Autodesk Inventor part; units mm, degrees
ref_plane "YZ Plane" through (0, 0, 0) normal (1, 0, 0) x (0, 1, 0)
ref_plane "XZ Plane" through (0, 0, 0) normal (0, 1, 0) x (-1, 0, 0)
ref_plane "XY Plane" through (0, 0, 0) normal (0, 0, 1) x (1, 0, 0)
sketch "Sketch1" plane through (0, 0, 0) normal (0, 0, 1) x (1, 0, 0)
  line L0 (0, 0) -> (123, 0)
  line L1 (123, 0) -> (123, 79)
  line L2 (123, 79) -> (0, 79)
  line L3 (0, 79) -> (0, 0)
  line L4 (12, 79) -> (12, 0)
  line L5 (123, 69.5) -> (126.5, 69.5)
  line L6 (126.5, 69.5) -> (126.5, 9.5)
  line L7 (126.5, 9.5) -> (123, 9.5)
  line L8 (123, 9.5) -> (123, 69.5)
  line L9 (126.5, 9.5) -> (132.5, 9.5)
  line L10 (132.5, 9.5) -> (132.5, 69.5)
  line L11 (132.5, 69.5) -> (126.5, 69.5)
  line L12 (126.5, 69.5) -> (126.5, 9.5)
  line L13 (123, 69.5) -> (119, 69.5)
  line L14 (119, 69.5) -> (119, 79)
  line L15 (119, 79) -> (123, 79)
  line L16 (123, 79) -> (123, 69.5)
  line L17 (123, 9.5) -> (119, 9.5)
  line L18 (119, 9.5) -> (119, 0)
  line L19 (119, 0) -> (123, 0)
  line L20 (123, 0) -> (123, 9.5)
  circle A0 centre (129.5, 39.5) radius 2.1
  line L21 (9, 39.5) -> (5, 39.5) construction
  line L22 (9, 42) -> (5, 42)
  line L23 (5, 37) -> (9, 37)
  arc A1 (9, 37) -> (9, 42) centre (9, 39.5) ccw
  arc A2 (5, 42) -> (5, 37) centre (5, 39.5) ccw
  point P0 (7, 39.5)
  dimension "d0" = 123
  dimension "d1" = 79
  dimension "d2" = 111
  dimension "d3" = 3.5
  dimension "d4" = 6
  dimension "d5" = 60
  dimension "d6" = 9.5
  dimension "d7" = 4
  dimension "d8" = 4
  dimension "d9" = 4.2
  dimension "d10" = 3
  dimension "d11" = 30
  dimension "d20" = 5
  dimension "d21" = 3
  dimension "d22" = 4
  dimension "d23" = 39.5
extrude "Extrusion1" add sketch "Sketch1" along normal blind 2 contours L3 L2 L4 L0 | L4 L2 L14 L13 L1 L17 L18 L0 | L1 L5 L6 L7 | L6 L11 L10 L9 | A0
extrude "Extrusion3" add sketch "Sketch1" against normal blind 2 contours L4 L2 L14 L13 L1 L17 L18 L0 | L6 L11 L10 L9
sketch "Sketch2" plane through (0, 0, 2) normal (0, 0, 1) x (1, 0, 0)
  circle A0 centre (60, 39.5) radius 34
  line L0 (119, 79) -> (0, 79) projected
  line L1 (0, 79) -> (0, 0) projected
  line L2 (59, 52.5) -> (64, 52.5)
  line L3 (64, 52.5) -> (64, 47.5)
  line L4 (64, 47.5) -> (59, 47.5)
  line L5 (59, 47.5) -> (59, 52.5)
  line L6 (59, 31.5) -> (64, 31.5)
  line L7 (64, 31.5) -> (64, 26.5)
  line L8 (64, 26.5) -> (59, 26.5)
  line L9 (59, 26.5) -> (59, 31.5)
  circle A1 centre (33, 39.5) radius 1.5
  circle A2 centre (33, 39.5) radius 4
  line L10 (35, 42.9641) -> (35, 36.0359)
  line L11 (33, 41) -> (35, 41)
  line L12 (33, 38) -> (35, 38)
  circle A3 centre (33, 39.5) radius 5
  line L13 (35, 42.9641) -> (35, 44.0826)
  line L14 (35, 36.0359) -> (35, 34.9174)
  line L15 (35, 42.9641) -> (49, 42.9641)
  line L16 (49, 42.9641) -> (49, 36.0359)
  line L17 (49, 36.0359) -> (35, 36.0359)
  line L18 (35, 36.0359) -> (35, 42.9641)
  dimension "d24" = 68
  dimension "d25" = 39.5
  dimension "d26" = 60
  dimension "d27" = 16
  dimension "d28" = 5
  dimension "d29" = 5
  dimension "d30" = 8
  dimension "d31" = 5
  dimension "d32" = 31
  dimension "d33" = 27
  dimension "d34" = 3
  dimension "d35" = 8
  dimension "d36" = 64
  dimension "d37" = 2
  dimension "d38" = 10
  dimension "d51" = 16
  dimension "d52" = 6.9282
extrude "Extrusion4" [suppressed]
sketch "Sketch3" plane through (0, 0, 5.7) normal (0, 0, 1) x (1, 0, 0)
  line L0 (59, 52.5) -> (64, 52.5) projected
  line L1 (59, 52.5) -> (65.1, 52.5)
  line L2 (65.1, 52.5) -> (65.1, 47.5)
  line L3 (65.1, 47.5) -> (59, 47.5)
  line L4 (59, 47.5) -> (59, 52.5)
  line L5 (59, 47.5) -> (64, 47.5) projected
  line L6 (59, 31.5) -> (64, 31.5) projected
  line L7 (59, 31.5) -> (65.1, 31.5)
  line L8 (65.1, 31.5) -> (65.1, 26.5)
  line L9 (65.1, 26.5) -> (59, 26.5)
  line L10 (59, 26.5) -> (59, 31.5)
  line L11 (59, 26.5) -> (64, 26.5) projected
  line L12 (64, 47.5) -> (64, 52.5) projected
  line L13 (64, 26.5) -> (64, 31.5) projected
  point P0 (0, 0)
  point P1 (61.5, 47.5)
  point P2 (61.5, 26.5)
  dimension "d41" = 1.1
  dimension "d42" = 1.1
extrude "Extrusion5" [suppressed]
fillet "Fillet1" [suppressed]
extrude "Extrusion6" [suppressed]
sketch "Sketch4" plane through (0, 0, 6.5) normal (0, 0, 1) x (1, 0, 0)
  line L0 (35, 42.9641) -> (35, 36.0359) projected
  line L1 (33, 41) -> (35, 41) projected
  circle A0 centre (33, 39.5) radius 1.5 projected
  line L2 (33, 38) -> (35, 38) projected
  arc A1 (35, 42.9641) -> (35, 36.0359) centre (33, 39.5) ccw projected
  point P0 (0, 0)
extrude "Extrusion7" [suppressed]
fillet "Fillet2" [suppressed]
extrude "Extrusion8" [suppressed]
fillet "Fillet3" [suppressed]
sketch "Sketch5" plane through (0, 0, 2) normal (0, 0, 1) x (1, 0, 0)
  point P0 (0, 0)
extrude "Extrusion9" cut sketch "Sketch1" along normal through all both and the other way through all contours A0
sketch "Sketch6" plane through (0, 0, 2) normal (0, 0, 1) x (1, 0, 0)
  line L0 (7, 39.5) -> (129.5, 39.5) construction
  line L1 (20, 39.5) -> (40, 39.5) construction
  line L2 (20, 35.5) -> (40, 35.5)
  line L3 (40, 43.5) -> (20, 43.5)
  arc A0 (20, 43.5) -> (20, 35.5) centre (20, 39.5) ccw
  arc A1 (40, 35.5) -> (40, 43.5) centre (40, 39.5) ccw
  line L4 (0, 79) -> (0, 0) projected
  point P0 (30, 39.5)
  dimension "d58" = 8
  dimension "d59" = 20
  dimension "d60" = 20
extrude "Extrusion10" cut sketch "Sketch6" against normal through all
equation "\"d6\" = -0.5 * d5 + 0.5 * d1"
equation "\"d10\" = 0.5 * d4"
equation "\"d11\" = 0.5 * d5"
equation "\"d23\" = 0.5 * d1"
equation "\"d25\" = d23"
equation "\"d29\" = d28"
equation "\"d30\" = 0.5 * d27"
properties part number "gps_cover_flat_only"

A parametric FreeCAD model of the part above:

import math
import FreeCAD as App
import Part
import Sketcher

V = App.Vector


def add_polygon(sketch, points):
    """Adds a closed chain of lines whose ends are joined by coincident constraints."""
    first, n = sketch.GeometryCount, len(points)
    for a, b in zip(points, points[1:] + points[:1]):
        sketch.addGeometry(Part.LineSegment(App.Vector(*a, 0), App.Vector(*b, 0)), False)
    for i in range(n):
        sketch.addConstraint(Sketcher.Constraint("Coincident", first + i, 2, first + (i + 1) % n, 1))

doc = App.newDocument("Part")
body = doc.addObject("PartDesign::Body", "Body")

# Sketch on XY plane
sketch1 = body.newObject("Sketcher::SketchObject", "Sketch")
sketch1.AttachmentSupport = (doc.getObject("XY_Plane"), [""])
sketch1.MapMode = "FlatFace"
add_polygon(sketch1, [(0, 79), (0, 0), (119, 0), (119, 9.5), (132.5, 9.5), (132.5, 69.5), (119, 69.5), (119, 79)])  # lines 0-7
sketch1.addGeometry(Part.LineSegment(V(5, 42, 0), V(9, 42, 0)), False)  # 8
sketch1.addGeometry(Part.ArcOfCircle(Part.Circle(V(9, 39.5, 0), V(0, 0, 1), 2.5), math.radians(-90), math.radians(90)), False)  # 9
sketch1.addGeometry(Part.LineSegment(V(9, 37, 0), V(5, 37, 0)), False)  # 10
sketch1.addGeometry(Part.ArcOfCircle(Part.Circle(V(5, 39.5, 0), V(0, 0, 1), 2.5), math.radians(90), math.radians(270)), False)  # 11
sketch1.addConstraint([
    Sketcher.Constraint("Tangent", 8, 2, 9, 2),
    Sketcher.Constraint("Tangent", 9, 1, 10, 1),
    Sketcher.Constraint("Tangent", 10, 2, 11, 2),
    Sketcher.Constraint("Tangent", 11, 1, 8, 1),
    Sketcher.Constraint("Vertical", 0),
    Sketcher.Constraint("Horizontal", 1),
    Sketcher.Constraint("Vertical", 2),
    Sketcher.Constraint("Horizontal", 3),
    Sketcher.Constraint("Vertical", 4),
    Sketcher.Constraint("Horizontal", 5),
    Sketcher.Constraint("Vertical", 6),
    Sketcher.Constraint("Horizontal", 7),
    Sketcher.Constraint("Horizontal", 8),
    Sketcher.Constraint("Horizontal", 10),
    Sketcher.Constraint("Coincident", 0, 2, -1, 1),
    Sketcher.Constraint("Vertical", 2, 2, 5, 2),
    Sketcher.Constraint("Equal", 2, 6),
    Sketcher.Constraint("Radius", 9, 2.5),
    Sketcher.Constraint("DistanceX", 8, 1, 8, 2, 4.0),
    Sketcher.Constraint("DistanceY", 0, 2, 0, 1, 79.0),
    Sketcher.Constraint("DistanceY", 4, 1, 4, 2, 60.0),
    Sketcher.Constraint("DistanceX", -1, 1, 11, 3, 5.0),
    Sketcher.Constraint("DistanceY", 2, 2, 9, 3, 30.0),
    Sketcher.Constraint("DistanceX", 1, 1, 1, 2, 119.0),
    Sketcher.Constraint("DistanceX", 3, 1, 3, 2, 13.5),
])
pad1 = body.newObject("PartDesign::Pad", "Pad")
pad1.Profile = sketch1
pad1.Length = 2

# Sketch on XY plane
sketch2 = body.newObject("Sketcher::SketchObject", "Sketch001")
sketch2.AttachmentSupport = (doc.getObject("XY_Plane"), [""])
sketch2.MapMode = "FlatFace"
add_polygon(sketch2, [(12, 79), (12, 0), (119, 0), (119, 9.5), (123, 9.5), (123, 69.5), (119, 69.5), (119, 79)])  # lines 0-7
add_polygon(sketch2, [(126.5, 69.5), (126.5, 9.5), (132.5, 9.5), (132.5, 69.5)])  # lines 8-11
sketch2.addGeometry(Part.Circle(V(129.5, 39.5, 0), V(0, 0, 1), 2.1), False)  # 12
sketch2.addConstraint([
    Sketcher.Constraint("Vertical", 0),
    Sketcher.Constraint("Horizontal", 1),
    Sketcher.Constraint("Vertical", 2),
    Sketcher.Constraint("Horizontal", 3),
    Sketcher.Constraint("Vertical", 4),
    Sketcher.Constraint("Horizontal", 5),
    Sketcher.Constraint("Vertical", 6),
    Sketcher.Constraint("Horizontal", 7),
    Sketcher.Constraint("Vertical", 8),
    Sketcher.Constraint("Horizontal", 9),
    Sketcher.Constraint("Vertical", 10),
    Sketcher.Constraint("Horizontal", 11),
    Sketcher.Constraint("PointOnObject", 0, 2, -1),
    Sketcher.Constraint("Horizontal", 3, 2, 8, 2),
    Sketcher.Constraint("Horizontal", 5, 2, 10, 2),
    Sketcher.Constraint("Vertical", 2, 2, 5, 2),
    Sketcher.Constraint("Equal", 2, 6),
    Sketcher.Constraint("Diameter", 12, 4.2),
    Sketcher.Constraint("DistanceX", 3, 1, 3, 2, 4.0),
    Sketcher.Constraint("DistanceX", 9, 1, 9, 2, 6.0),
    Sketcher.Constraint("DistanceY", 0, 2, 0, 1, 79.0),
    Sketcher.Constraint("DistanceY", 4, 1, 4, 2, 60.0),
    Sketcher.Constraint("DistanceX", -1, 1, 3, 2, 123.0),
    Sketcher.Constraint("DistanceY", 2, 2, 12, 3, 30.0),
    Sketcher.Constraint("DistanceX", 0, 2, 3, 2, 111.0),
    Sketcher.Constraint("DistanceX", 8, 2, 12, 3, 3.0),
    Sketcher.Constraint("DistanceX", 3, 2, 8, 2, 3.5),
])
pad2 = body.newObject("PartDesign::Pad", "Pad001")
pad2.Profile = sketch2
pad2.Length = 2
pad2.Reversed = True

# Sketch on XY plane
sketch3 = body.newObject("Sketcher::SketchObject", "Sketch002")
sketch3.AttachmentSupport = (doc.getObject("XY_Plane"), [""])
sketch3.MapMode = "FlatFace"
sketch3.addGeometry(Part.Circle(V(129.5, 39.5, 0), V(0, 0, 1), 2.1), False)
sketch3.addConstraint([
    Sketcher.Constraint("Diameter", 0, 4.2),
    Sketcher.Constraint("DistanceY", -1, 1, 0, 3, 39.5),
    Sketcher.Constraint("DistanceX", -1, 1, 0, 3, 129.5),
])
pocket1 = body.newObject("PartDesign::Pocket", "Pocket")
pocket1.Profile = sketch3
pocket1.Type = "ThroughAll"
pocket1.Midplane = True

# Sketch on XY plane
sketch4 = body.newObject("Sketcher::SketchObject", "Sketch003")
sketch4.AttachmentSupport = (doc.getObject("XY_Plane"), [""])
sketch4.MapMode = "FlatFace"
sketch4.AttachmentOffset = App.Placement(V(0, 0, 2), App.Rotation())
sketch4.addGeometry([
    Part.ArcOfCircle(Part.Circle(V(20, 39.5, 0), V(0, 0, 1), 4), math.radians(90), math.radians(270)),
    Part.LineSegment(V(20, 35.5, 0), V(40, 35.5, 0)),
    Part.ArcOfCircle(Part.Circle(V(40, 39.5, 0), V(0, 0, 1), 4), math.radians(-90), math.radians(90)),
    Part.LineSegment(V(40, 43.5, 0), V(20, 43.5, 0)),
], False)
sketch4.addConstraint([
    Sketcher.Constraint("Tangent", 0, 2, 1, 1),
    Sketcher.Constraint("Tangent", 1, 2, 2, 1),
    Sketcher.Constraint("Tangent", 2, 2, 3, 1),
    Sketcher.Constraint("Tangent", 3, 2, 0, 1),
    Sketcher.Constraint("Horizontal", 1),
    Sketcher.Constraint("Horizontal", 3),
    Sketcher.Constraint("Radius", 0, 4.0),
    Sketcher.Constraint("DistanceX", 1, 1, 1, 2, 20.0),
    Sketcher.Constraint("DistanceX", -1, 1, 0, 3, 20.0),
    Sketcher.Constraint("DistanceY", -1, 1, 0, 3, 39.5),
])
pocket2 = body.newObject("PartDesign::Pocket", "Pocket001")
pocket2.Profile = sketch4
pocket2.Type = "ThroughAll"

doc.recompute()
